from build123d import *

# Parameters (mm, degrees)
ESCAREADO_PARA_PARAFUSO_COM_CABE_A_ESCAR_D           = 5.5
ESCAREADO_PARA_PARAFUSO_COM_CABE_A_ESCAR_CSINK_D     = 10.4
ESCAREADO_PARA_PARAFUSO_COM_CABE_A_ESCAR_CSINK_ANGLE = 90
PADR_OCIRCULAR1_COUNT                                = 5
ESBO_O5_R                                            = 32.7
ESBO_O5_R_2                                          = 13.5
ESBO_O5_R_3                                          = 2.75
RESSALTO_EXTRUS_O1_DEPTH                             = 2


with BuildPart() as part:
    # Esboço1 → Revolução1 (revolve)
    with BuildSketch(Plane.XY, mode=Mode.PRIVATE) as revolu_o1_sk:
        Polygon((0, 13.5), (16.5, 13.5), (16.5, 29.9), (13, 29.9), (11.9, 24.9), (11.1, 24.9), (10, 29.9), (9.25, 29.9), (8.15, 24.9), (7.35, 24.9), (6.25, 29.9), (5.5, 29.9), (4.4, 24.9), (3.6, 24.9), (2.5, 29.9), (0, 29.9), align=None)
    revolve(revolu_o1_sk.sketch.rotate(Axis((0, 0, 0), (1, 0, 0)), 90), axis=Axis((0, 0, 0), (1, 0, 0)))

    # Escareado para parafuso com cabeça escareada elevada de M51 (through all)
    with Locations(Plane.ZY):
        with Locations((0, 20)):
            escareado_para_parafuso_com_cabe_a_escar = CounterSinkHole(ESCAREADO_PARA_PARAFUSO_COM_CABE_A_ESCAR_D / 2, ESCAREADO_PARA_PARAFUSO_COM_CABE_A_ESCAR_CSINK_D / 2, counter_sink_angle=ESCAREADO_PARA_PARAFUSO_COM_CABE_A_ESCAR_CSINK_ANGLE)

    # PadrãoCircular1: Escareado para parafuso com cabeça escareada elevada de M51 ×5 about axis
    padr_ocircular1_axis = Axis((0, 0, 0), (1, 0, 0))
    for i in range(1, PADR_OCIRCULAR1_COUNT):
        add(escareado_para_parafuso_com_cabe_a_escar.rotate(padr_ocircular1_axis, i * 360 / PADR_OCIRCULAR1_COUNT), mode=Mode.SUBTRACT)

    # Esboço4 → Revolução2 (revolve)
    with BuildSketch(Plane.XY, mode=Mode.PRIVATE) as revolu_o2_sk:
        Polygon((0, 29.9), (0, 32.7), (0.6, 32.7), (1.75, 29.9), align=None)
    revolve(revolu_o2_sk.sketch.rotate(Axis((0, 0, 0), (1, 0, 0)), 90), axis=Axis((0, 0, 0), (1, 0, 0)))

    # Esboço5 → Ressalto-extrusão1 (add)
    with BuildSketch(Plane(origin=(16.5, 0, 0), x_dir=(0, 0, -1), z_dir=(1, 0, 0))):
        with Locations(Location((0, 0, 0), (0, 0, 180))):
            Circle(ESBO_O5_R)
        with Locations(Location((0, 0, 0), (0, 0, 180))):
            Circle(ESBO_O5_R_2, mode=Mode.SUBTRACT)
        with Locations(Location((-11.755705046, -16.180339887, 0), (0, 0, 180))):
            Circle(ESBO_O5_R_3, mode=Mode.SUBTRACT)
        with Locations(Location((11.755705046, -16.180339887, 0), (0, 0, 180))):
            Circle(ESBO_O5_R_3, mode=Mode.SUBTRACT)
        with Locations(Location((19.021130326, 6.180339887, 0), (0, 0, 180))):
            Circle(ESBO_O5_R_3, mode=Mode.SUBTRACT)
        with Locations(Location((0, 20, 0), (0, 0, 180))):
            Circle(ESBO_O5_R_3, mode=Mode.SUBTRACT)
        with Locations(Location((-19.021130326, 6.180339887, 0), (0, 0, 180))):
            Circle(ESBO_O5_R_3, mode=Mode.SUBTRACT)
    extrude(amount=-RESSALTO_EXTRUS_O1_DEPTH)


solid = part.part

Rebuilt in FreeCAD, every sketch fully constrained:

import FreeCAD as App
import Part
import Sketcher

V = App.Vector


def add_polygon(sketch, points):
    """Adds a closed chain of lines whose ends are joined by coincident constraints."""
    first, n = sketch.GeometryCount, len(points)
    for a, b in zip(points, points[1:] + points[:1]):
        sketch.addGeometry(Part.LineSegment(App.Vector(*a, 0), App.Vector(*b, 0)), False)
    for i in range(n):
        sketch.addConstraint(Sketcher.Constraint("Coincident", first + i, 2, first + (i + 1) % n, 1))

doc = App.newDocument("Part")
body = doc.addObject("PartDesign::Body", "Body")

# Sketch on XY plane
sketch1 = body.newObject("Sketcher::SketchObject", "Sketch")
sketch1.AttachmentSupport = (doc.getObject("XY_Plane"), [""])
sketch1.MapMode = "FlatFace"
add_polygon(sketch1, [(0, 13.5), (16.5, 13.5), (16.5, 29.9), (13, 29.9), (11.9, 24.9), (11.1, 24.9), (10, 29.9), (9.2, 29.9), (8.2, 24.9), (7.3, 24.9), (6.2, 29.9), (5.5, 29.9), (4.4, 24.9), (3.6, 24.9), (2.5, 29.9), (0, 29.9)])  # lines 0-15
sketch1.addConstraint(Sketcher.Constraint("Horizontal", 0))
sketch1.addConstraint(Sketcher.Constraint("Vertical", 1))
sketch1.addConstraint(Sketcher.Constraint("Horizontal", 2))
sketch1.addConstraint(Sketcher.Constraint("Horizontal", 4))
sketch1.addConstraint(Sketcher.Constraint("Horizontal", 6))
sketch1.addConstraint(Sketcher.Constraint("Horizontal", 8))
sketch1.addConstraint(Sketcher.Constraint("Horizontal", 10))
sketch1.addConstraint(Sketcher.Constraint("Horizontal", 12))
sketch1.addConstraint(Sketcher.Constraint("Horizontal", 14))
sketch1.addConstraint(Sketcher.Constraint("Vertical", 15))
sketch1.addConstraint(Sketcher.Constraint("PointOnObject", 14, 2, -2))
sketch1.addConstraint(Sketcher.Constraint("Parallel", 3, 7))
sketch1.addConstraint(Sketcher.Constraint("Parallel", 5, 9))
sketch1.addConstraint(Sketcher.Constraint("Parallel", 7, 11))
sketch1.addConstraint(Sketcher.Constraint("Parallel", 9, 13))
sketch1.addConstraint(Sketcher.Constraint("Horizontal", 2, 2, 5, 2))
sketch1.addConstraint(Sketcher.Constraint("Horizontal", 4, 2, 7, 2))
sketch1.addConstraint(Sketcher.Constraint("Horizontal", 6, 2, 9, 2))
sketch1.addConstraint(Sketcher.Constraint("Horizontal", 8, 2, 11, 2))
sketch1.addConstraint(Sketcher.Constraint("Horizontal", 10, 2, 13, 2))
sketch1.addConstraint(Sketcher.Constraint("Equal", 4, 8))
sketch1.addConstraint(Sketcher.Constraint("Equal", 6, 10))
sketch1.addConstraint(Sketcher.Constraint("Equal", 8, 12))
sketch1.addConstraint(Sketcher.Constraint("Equal", 3, 5))
sketch1.addConstraint(Sketcher.Constraint("DistanceX", 0, 1, 0, 2, 16.5))
sketch1.addConstraint(Sketcher.Constraint("DistanceX", 2, 2, 2, 1, 3.5))
sketch1.addConstraint(Sketcher.Constraint("DistanceX", 4, 2, 4, 1, 0.8))
sketch1.addConstraint(Sketcher.Constraint("DistanceX", 14, 2, 14, 1, 2.5))
sketch1.addConstraint(Sketcher.Constraint("DistanceY", 1, 1, 1, 2, 16.4))
sketch1.addConstraint(Sketcher.Constraint("DistanceX", -1, 1, 5, 2, 10.0))
sketch1.addConstraint(Sketcher.Constraint("DistanceY", 3, 2, 2, 2, 5.0))
sketch1.addConstraint(Sketcher.Constraint("DistanceY", -1, 1, 0, 2, 13.5))
revolution = body.newObject("PartDesign::Revolution", "Revolution")
revolution.Profile = sketch1
revolution.ReferenceAxis = (sketch1, ["H_Axis"])
revolution.Angle = 360

# Sketch on YZ plane
sketch2 = body.newObject("Sketcher::SketchObject", "Sketch001")
sketch2.AttachmentSupport = (doc.getObject("YZ_Plane"), [""])
sketch2.MapMode = "FlatFace"
sketch2.addGeometry(Part.Circle(V(20, 0, 0), V(0, 0, 1), 2.8), False)
sketch2.addConstraint(Sketcher.Constraint("PointOnObject", 0, 3, -1))
sketch2.addConstraint(Sketcher.Constraint("Diameter", 0, 5.5))
sketch2.addConstraint(Sketcher.Constraint("DistanceX", -1, 1, 0, 3, 20.0))
doc.recompute()
hole = body.newObject("PartDesign::Hole", "Hole")
hole.Profile = sketch2
hole.ThreadType = "None"
hole.Diameter = 5.5
hole.DepthType = "ThroughAll"
hole.HoleCutType = "Countersink"
hole.HoleCutDiameter = 10.4
hole.HoleCutCountersinkAngle = 90
hole.Reversed = True
doc.recompute()

polarpattern = body.newObject("PartDesign::PolarPattern", "PolarPattern")
polarpattern.Originals = [hole]
polarpattern.Axis = (doc.getObject("X_Axis"), [""])
polarpattern.Angle = 360
polarpattern.Occurrences = 5
body.Tip = polarpattern

# Sketch on XY plane
sketch3 = body.newObject("Sketcher::SketchObject", "Sketch002")
sketch3.AttachmentSupport = (doc.getObject("XY_Plane"), [""])
sketch3.MapMode = "FlatFace"
add_polygon(sketch3, [(0, 32.7), (0, 29.9), (1.8, 29.9), (0.6, 32.7)])  # lines 0-3
sketch3.addConstraint(Sketcher.Constraint("Vertical", 0))
sketch3.addConstraint(Sketcher.Constraint("Horizontal", 1))
sketch3.addConstraint(Sketcher.Constraint("Horizontal", 3))
sketch3.addConstraint(Sketcher.Constraint("PointOnObject", 0, 2, -2))
sketch3.addConstraint(Sketcher.Constraint("DistanceX", 3, 2, 3, 1, 0.6))
sketch3.addConstraint(Sketcher.Constraint("DistanceY", 0, 2, 0, 1, 2.8))
sketch3.addConstraint(Sketcher.Constraint("DistanceX", 1, 1, 1, 2, 1.75))
sketch3.addConstraint(Sketcher.Constraint("DistanceY", -1, 1, 0, 2, 29.9))
revolution2 = body.newObject("PartDesign::Revolution", "Revolution001")
revolution2.Profile = sketch3
revolution2.ReferenceAxis = (sketch3, ["H_Axis"])
revolution2.Angle = 360

# Sketch on YZ plane
sketch4 = body.newObject("Sketcher::SketchObject", "Sketch003")
sketch4.AttachmentSupport = (doc.getObject("YZ_Plane"), [""])
sketch4.MapMode = "FlatFace"
sketch4.AttachmentOffset = App.Placement(V(0, 0, 16.5), App.Rotation())
sketch4.addGeometry(Part.Circle(V(0, 0, 0), V(0, 0, 1), 32.7), False)
sketch4.addGeometry(Part.Circle(V(6.2, -19, 0), V(0, 0, 1), 2.8), False)
sketch4.addGeometry(Part.Circle(V(20, 0, 0), V(0, 0, 1), 2.8), False)
sketch4.addGeometry(Part.Circle(V(6.2, 19, 0), V(0, 0, 1), 2.8), False)
sketch4.addGeometry(Part.Circle(V(0, 0, 0), V(0, 0, 1), 13.5), False)
sketch4.addGeometry(Part.Circle(V(-16.2, -11.8, 0), V(0, 0, 1), 2.8), False)
sketch4.addGeometry(Part.Circle(V(-16.2, 11.8, 0), V(0, 0, 1), 2.8), False)
sketch4.addConstraint(Sketcher.Constraint("Coincident", 0, 3, -1, 1))
sketch4.addConstraint(Sketcher.Constraint("Coincident", 4, 3, -1, 1))
sketch4.addConstraint(Sketcher.Constraint("Equal", 1, 2))
sketch4.addConstraint(Sketcher.Constraint("Equal", 2, 3))
sketch4.addConstraint(Sketcher.Constraint("Equal", 3, 5))
sketch4.addConstraint(Sketcher.Constraint("Equal", 5, 6))
sketch4.addConstraint(Sketcher.Constraint("Symmetric", 1, 3, 3, 3, -1))
sketch4.addConstraint(Sketcher.Constraint("Symmetric", 5, 3, 6, 3, -1))
sketch4.addConstraint(Sketcher.Constraint("PointOnObject", 2, 3, -1))
sketch4.addConstraint(Sketcher.Constraint("Diameter", 4, 27.0))
sketch4.addConstraint(Sketcher.Constraint("Diameter", 0, 65.4))
sketch4.addConstraint(Sketcher.Constraint("Diameter", 1, 5.5))
sketch4.addConstraint(Sketcher.Constraint("DistanceX", -1, 1, 2, 3, 20.0))
sketch4.addConstraint(Sketcher.Constraint("DistanceX", -1, 1, 1, 3, 6.18034))
sketch4.addConstraint(Sketcher.Constraint("DistanceY", 1, 3, -1, 1, 19.02113))
sketch4.addConstraint(Sketcher.Constraint("DistanceX", 5, 3, -1, 1, 16.18034))
sketch4.addConstraint(Sketcher.Constraint("DistanceY", 5, 3, 6, 3, 23.51141))
pad1 = body.newObject("PartDesign::Pad", "Pad")
pad1.Profile = sketch4
pad1.Length = 2
pad1.Reversed = True

doc.recompute()
